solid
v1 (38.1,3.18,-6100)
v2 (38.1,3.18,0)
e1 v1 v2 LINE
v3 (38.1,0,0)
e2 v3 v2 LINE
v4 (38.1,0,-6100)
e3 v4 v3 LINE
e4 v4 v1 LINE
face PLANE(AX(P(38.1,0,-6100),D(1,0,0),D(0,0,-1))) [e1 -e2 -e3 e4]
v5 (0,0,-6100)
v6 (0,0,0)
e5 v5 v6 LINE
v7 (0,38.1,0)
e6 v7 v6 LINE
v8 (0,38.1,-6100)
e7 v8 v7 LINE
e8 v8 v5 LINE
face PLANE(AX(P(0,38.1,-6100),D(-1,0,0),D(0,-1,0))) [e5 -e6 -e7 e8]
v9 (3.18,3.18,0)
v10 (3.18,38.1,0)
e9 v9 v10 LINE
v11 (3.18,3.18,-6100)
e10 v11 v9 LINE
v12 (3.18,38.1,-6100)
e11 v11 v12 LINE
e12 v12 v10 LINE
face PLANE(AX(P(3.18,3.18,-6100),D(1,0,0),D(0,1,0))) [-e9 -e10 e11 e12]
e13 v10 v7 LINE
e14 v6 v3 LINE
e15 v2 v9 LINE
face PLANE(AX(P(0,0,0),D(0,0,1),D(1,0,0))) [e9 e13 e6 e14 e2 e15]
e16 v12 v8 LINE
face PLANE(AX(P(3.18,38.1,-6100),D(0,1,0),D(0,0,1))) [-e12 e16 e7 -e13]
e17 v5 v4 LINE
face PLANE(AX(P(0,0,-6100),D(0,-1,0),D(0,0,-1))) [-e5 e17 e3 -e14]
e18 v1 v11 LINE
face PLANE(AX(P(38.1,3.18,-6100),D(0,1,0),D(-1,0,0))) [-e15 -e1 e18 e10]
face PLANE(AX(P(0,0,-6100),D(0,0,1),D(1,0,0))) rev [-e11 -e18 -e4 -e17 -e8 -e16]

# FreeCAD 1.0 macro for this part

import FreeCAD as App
import Part
import Sketcher

doc = App.newDocument("Part")
body = doc.addObject("PartDesign::Body", "Body")

# Sketch on XY plane
sketch1 = body.newObject("Sketcher::SketchObject", "Sketch")
sketch1.AttachmentSupport = (doc.getObject("XY_Plane"), [""])
sketch1.MapMode = "FlatFace"
sketch1.addGeometry([
    Part.LineSegment(App.Vector(0, 38.1, 0), App.Vector(0, 0, 0)),  # 0
    Part.LineSegment(App.Vector(0, 0, 0), App.Vector(38.1, 0, 0)),  # 1
    Part.LineSegment(App.Vector(38.1, 0, 0), App.Vector(38.1, 3.2, 0)),  # 2
    Part.LineSegment(App.Vector(38.1, 3.2, 0), App.Vector(3.2, 3.2, 0)),  # 3
    Part.LineSegment(App.Vector(3.2, 3.2, 0), App.Vector(3.2, 38.1, 0)),  # 4
    Part.LineSegment(App.Vector(3.2, 38.1, 0), App.Vector(0, 38.1, 0)),  # 5
], False)
sketch1.addConstraint([
    Sketcher.Constraint("Coincident", 0, 2, 1, 1),
    Sketcher.Constraint("Coincident", 1, 2, 2, 1),
    Sketcher.Constraint("Coincident", 2, 2, 3, 1),
    Sketcher.Constraint("Coincident", 3, 2, 4, 1),
    Sketcher.Constraint("Coincident", 4, 2, 5, 1),
    Sketcher.Constraint("Coincident", 5, 2, 0, 1),
    Sketcher.Constraint("Vertical", 0),
    Sketcher.Constraint("Horizontal", 1),
    Sketcher.Constraint("Vertical", 2),
    Sketcher.Constraint("Horizontal", 3),
    Sketcher.Constraint("Vertical", 4),
    Sketcher.Constraint("Horizontal", 5),
    Sketcher.Constraint("Coincident", 0, 2, -1, 1),
    Sketcher.Constraint("Equal", 1, 0),
    Sketcher.Constraint("Equal", 5, 2),
    Sketcher.Constraint("DistanceX", 1, 1, 1, 2, 38.1),
    Sketcher.Constraint("DistanceX", 3, 2, 3, 1, 34.92),
])
pad1 = body.newObject("PartDesign::Pad", "Pad")
pad1.Profile = sketch1
pad1.Length = 6100
pad1.Reversed = True

doc.recompute()
